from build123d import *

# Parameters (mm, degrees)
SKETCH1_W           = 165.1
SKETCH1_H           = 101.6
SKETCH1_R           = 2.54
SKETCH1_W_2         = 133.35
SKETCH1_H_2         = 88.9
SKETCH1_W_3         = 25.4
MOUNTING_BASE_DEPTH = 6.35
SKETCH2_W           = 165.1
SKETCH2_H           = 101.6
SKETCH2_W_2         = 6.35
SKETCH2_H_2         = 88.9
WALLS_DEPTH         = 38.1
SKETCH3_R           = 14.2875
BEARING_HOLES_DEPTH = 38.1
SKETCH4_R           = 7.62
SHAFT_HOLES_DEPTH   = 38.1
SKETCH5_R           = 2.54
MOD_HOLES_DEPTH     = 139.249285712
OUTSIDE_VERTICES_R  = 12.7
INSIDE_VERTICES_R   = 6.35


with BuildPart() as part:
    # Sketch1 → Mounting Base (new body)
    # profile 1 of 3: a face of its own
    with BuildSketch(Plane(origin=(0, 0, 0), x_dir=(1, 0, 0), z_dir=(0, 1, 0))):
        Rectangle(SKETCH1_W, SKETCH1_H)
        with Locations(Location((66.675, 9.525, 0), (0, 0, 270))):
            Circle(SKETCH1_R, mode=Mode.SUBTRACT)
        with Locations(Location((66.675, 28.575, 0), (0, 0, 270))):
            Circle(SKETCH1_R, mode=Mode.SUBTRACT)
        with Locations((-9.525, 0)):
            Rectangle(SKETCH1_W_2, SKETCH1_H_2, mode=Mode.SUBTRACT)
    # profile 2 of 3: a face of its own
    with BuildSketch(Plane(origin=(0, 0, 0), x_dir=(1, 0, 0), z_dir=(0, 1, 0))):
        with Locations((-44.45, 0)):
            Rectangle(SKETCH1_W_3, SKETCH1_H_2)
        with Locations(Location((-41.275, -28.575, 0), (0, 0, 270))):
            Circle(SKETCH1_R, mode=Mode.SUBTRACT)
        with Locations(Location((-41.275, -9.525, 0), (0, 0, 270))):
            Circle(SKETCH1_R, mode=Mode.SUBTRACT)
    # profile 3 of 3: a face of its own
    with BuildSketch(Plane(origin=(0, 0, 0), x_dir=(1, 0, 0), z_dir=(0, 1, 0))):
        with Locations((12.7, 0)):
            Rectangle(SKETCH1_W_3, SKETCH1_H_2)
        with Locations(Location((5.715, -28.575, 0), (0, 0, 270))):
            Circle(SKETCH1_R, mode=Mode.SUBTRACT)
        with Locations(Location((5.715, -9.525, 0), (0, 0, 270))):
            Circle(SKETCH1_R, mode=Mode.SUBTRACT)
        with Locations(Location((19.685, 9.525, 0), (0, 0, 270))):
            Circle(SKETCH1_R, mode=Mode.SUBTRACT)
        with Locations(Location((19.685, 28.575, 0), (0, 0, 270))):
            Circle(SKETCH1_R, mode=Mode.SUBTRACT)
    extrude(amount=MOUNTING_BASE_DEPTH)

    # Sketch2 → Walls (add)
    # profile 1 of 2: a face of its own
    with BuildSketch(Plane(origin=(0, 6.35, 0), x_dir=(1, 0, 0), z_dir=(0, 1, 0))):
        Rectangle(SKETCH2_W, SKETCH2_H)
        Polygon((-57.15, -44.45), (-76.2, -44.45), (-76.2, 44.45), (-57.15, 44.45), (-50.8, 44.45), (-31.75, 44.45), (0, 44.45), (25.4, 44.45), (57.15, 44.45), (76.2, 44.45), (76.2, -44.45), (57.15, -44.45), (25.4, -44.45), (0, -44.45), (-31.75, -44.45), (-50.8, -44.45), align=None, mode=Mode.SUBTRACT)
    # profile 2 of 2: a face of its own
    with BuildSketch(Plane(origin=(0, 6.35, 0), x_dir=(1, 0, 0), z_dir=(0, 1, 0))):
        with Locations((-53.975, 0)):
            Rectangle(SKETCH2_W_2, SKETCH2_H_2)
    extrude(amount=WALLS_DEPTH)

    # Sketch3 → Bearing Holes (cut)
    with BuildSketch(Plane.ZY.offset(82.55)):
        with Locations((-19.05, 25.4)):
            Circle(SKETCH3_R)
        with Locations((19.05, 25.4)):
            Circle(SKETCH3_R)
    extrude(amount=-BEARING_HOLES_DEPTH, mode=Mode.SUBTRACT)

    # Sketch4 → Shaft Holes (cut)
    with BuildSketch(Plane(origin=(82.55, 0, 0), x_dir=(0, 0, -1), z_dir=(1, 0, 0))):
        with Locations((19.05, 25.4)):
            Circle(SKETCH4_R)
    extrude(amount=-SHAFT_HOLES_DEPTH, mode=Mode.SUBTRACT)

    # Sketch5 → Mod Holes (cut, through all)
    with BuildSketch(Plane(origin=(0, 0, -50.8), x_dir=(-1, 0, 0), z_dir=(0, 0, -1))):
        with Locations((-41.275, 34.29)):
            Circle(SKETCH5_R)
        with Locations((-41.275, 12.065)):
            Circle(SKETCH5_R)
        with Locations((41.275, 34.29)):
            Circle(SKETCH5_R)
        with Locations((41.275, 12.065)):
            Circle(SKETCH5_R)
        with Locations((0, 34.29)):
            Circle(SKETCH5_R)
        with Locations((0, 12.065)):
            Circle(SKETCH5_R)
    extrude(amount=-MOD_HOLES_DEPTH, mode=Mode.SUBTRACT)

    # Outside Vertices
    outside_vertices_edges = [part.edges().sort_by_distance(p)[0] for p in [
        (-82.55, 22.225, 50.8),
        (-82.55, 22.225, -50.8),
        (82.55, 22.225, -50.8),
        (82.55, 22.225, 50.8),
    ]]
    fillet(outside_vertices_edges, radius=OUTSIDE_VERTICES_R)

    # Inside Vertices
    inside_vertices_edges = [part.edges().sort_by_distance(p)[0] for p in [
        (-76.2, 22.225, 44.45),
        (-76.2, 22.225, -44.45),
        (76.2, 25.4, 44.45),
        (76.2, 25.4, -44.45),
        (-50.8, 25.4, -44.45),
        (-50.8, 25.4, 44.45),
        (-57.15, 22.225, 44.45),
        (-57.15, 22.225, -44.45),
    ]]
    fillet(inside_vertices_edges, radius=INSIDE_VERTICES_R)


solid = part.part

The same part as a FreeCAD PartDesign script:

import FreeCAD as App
import Part
import Sketcher

V = App.Vector
Q = App.Units.Quantity


def edges_at(feature, points):
    """Names of the edges that pass closest to the given points."""
    edges = feature.Shape.Edges
    near = lambda p: min(range(len(edges)), key=lambda i: edges[i].distToShape(Part.Vertex(*p))[0])
    return sorted({f"Edge{near(p) + 1}" for p in points})


def add_polygon(sketch, points):
    """Adds a closed chain of lines whose ends are joined by coincident constraints."""
    first, n = sketch.GeometryCount, len(points)
    for a, b in zip(points, points[1:] + points[:1]):
        sketch.addGeometry(Part.LineSegment(App.Vector(*a, 0), App.Vector(*b, 0)), False)
    for i in range(n):
        sketch.addConstraint(Sketcher.Constraint("Coincident", first + i, 2, first + (i + 1) % n, 1))

doc = App.newDocument("Part")
body = doc.addObject("PartDesign::Body", "Body")

sketch1 = body.newObject("Sketcher::SketchObject", "Sketch")
sketch1.AttachmentSupport = (doc.getObject("XZ_Plane"), [""])
sketch1.MapMode = "FlatFace"
add_polygon(sketch1, [(-82.55, -50.8), (-82.55, 50.8), (82.55, 50.8), (82.55, -50.8)])
add_polygon(sketch1, [(-57.15, 44.45), (-76.2, 44.45), (-76.2, -44.45), (-57.15, -44.45)])
add_polygon(sketch1, [(0, 44.45), (-31.75, 44.45), (-31.75, -44.45), (0, -44.45)])
add_polygon(sketch1, [(57.15, 44.45), (25.4, 44.45), (25.4, -44.45), (57.15, -44.45)])
sketch1.addGeometry(Part.Circle(V(66.675, -9.525, 0), V(0, 0, 1), 2.54), False)
sketch1.addGeometry(Part.Circle(V(66.675, -28.575, 0), V(0, 0, 1), 2.54), False)
sketch1.addGeometry(Part.Circle(V(-41.275, 9.525, 0), V(0, 0, 1), 2.54), False)
sketch1.addGeometry(Part.Circle(V(-41.275, 28.575, 0), V(0, 0, 1), 2.54), False)
sketch1.addGeometry(Part.Circle(V(19.685, -28.575, 0), V(0, 0, 1), 2.54), False)
sketch1.addGeometry(Part.Circle(V(19.685, -9.525, 0), V(0, 0, 1), 2.54), False)
sketch1.addGeometry(Part.Circle(V(5.715, 28.575, 0), V(0, 0, 1), 2.54), False)
sketch1.addGeometry(Part.Circle(V(5.715, 9.525, 0), V(0, 0, 1), 2.54), False)
sketch1.addConstraint(Sketcher.Constraint("Vertical", 0))
sketch1.addConstraint(Sketcher.Constraint("Horizontal", 1))
sketch1.addConstraint(Sketcher.Constraint("Vertical", 2))
sketch1.addConstraint(Sketcher.Constraint("Horizontal", 3))
sketch1.addConstraint(Sketcher.Constraint("Horizontal", 4))
sketch1.addConstraint(Sketcher.Constraint("Vertical", 5))
sketch1.addConstraint(Sketcher.Constraint("Horizontal", 6))
sketch1.addConstraint(Sketcher.Constraint("Vertical", 7))
sketch1.addConstraint(Sketcher.Constraint("Horizontal", 8))
sketch1.addConstraint(Sketcher.Constraint("Vertical", 9))
sketch1.addConstraint(Sketcher.Constraint("Horizontal", 10))
sketch1.addConstraint(Sketcher.Constraint("Vertical", 11))
sketch1.addConstraint(Sketcher.Constraint("Horizontal", 12))
sketch1.addConstraint(Sketcher.Constraint("Vertical", 13))
sketch1.addConstraint(Sketcher.Constraint("Horizontal", 14))
sketch1.addConstraint(Sketcher.Constraint("Vertical", 15))
sketch1.addConstraint(Sketcher.Constraint("Equal", 16, 17))
sketch1.addConstraint(Sketcher.Constraint("Equal", 17, 18))
sketch1.addConstraint(Sketcher.Constraint("Equal", 18, 19))
sketch1.addConstraint(Sketcher.Constraint("Equal", 19, 20))
sketch1.addConstraint(Sketcher.Constraint("Equal", 20, 21))
sketch1.addConstraint(Sketcher.Constraint("Equal", 21, 22))
sketch1.addConstraint(Sketcher.Constraint("Equal", 22, 23))
sketch1.addConstraint(Sketcher.Constraint("Symmetric", 0, 2, 2, 2, -1, 1))
sketch1.addConstraint(Sketcher.Constraint("Symmetric", 10, 2, 11, 2, -1, 1))
sketch1.addConstraint(Sketcher.Constraint("Symmetric", 7, 2, 14, 2, -1, 1))
sketch1.addConstraint(Sketcher.Constraint("Horizontal", 17, 3, 20, 3))
sketch1.addConstraint(Sketcher.Constraint("Horizontal", 16, 3, 21, 3))
sketch1.addConstraint(Sketcher.Constraint("Horizontal", 19, 3, 22, 3))
sketch1.addConstraint(Sketcher.Constraint("Horizontal", 18, 3, 23, 3))
sketch1.addConstraint(Sketcher.Constraint("Horizontal", 7, 2, 8, 2))
sketch1.addConstraint(Sketcher.Constraint("Horizontal", 6, 2, 9, 2))
sketch1.addConstraint(Sketcher.Constraint("Horizontal", 11, 2, 12, 2))
sketch1.addConstraint(Sketcher.Constraint("Vertical", 16, 3, 17, 3))
sketch1.addConstraint(Sketcher.Constraint("Vertical", 18, 3, 19, 3))
sketch1.addConstraint(Sketcher.Constraint("Vertical", 20, 3, 21, 3))
sketch1.addConstraint(Sketcher.Constraint("Vertical", 22, 3, 23, 3))
sketch1.addConstraint(Sketcher.Constraint("Equal", 10, 12))
sketch1.addConstraint(Sketcher.Constraint("Diameter", 16, Q("0.2 in")))
sketch1.addConstraint(Sketcher.Constraint("DistanceY", 0, 1, 0, 2, Q("4 in")))
sketch1.addConstraint(Sketcher.Constraint("DistanceX", 1, 1, 1, 2, Q("6.5 in")))
sketch1.addConstraint(Sketcher.Constraint("DistanceY", 5, 2, 5, 1, Q("3.5 in")))
sketch1.addConstraint(Sketcher.Constraint("DistanceX", 4, 2, -1, 1, Q("3 in")))
sketch1.addConstraint(Sketcher.Constraint("DistanceX", -1, 1, 12, 2, Q("1 in")))
sketch1.addConstraint(Sketcher.Constraint("DistanceX", 3, 2, 6, 2, Q("1 in")))
sketch1.addConstraint(Sketcher.Constraint("DistanceY", 17, 3, 18, 3, Q("1.5 in")))
sketch1.addConstraint(Sketcher.Constraint("DistanceY", 16, 3, 19, 3, Q("1.5 in")))
sketch1.addConstraint(Sketcher.Constraint("DistanceX", 18, 3, 20, 3, Q("2.4 in")))
sketch1.addConstraint(Sketcher.Constraint("DistanceX", 22, 3, 16, 3, Q("2.4 in")))
sketch1.addConstraint(Sketcher.Constraint("DistanceY", 17, 3, 16, 3, Q("0.75 in")))
sketch1.addConstraint(Sketcher.Constraint("DistanceX", 18, 3, 16, 3, Q("4.25 in")))
sketch1.addConstraint(Sketcher.Constraint("DistanceX", -1, 1, 16, 3, Q("2.625 in")))
sketch1.addConstraint(Sketcher.Constraint("DistanceY", 16, 3, -1, 1, Q("0.375 in")))
pad1 = body.newObject("PartDesign::Pad", "Pad")
pad1.Profile = sketch1
pad1.Length = Q("0.25 in")
pad1.Reversed = True

sketch2 = body.newObject("Sketcher::SketchObject", "Sketch001")
sketch2.AttachmentSupport = (doc.getObject("XZ_Plane"), [""])
sketch2.MapMode = "FlatFace"
sketch2.AttachmentOffset = App.Placement(V(0, 0, -0.25 * 25.4), App.Rotation())
add_polygon(sketch2, [(-82.55, -50.8), (-82.55, 50.8), (82.55, 50.8), (82.55, -50.8)])
add_polygon(sketch2, [(76.2, 44.45), (-50.8, 44.45), (-50.8, -44.45), (76.2, -44.45)])
add_polygon(sketch2, [(-57.15, 44.45), (-76.2, 44.45), (-76.2, -44.45), (-57.15, -44.45)])
sketch2.addConstraint(Sketcher.Constraint("Vertical", 0))
sketch2.addConstraint(Sketcher.Constraint("Horizontal", 1))
sketch2.addConstraint(Sketcher.Constraint("Vertical", 2))
sketch2.addConstraint(Sketcher.Constraint("Horizontal", 3))
sketch2.addConstraint(Sketcher.Constraint("Horizontal", 4))
sketch2.addConstraint(Sketcher.Constraint("Vertical", 5))
sketch2.addConstraint(Sketcher.Constraint("Horizontal", 6))
sketch2.addConstraint(Sketcher.Constraint("Vertical", 7))
sketch2.addConstraint(Sketcher.Constraint("Horizontal", 8))
sketch2.addConstraint(Sketcher.Constraint("Vertical", 9))
sketch2.addConstraint(Sketcher.Constraint("Horizontal", 10))
sketch2.addConstraint(Sketcher.Constraint("Vertical", 11))
sketch2.addConstraint(Sketcher.Constraint("Symmetric", 0, 2, 2, 2, -1, 1))
sketch2.addConstraint(Sketcher.Constraint("Symmetric", 6, 2, 8, 2, -1, 1))
sketch2.addConstraint(Sketcher.Constraint("Horizontal", 7, 2, 8, 2))
sketch2.addConstraint(Sketcher.Constraint("Horizontal", 6, 2, 9, 2))
sketch2.addConstraint(Sketcher.Constraint("DistanceX", 4, 2, 4, 1, Q("5 in")))
sketch2.addConstraint(Sketcher.Constraint("DistanceY", 0, 1, 0, 2, Q("4 in")))
sketch2.addConstraint(Sketcher.Constraint("DistanceX", 1, 1, 1, 2, Q("6.5 in")))
sketch2.addConstraint(Sketcher.Constraint("DistanceY", 5, 2, 5, 1, Q("3.5 in")))
sketch2.addConstraint(Sketcher.Constraint("DistanceX", 4, 2, -1, 1, Q("2 in")))
sketch2.addConstraint(Sketcher.Constraint("DistanceX", 3, 2, 10, 2, Q("1 in")))
pad2 = body.newObject("PartDesign::Pad", "Pad001")
pad2.Profile = sketch2
pad2.Length = Q("1.5 in")
pad2.Reversed = True

sketch3 = body.newObject("Sketcher::SketchObject", "Sketch002")
sketch3.AttachmentSupport = (doc.getObject("YZ_Plane"), [""])
sketch3.MapMode = "FlatFace"
sketch3.AttachmentOffset = App.Placement(V(0, 0, -3.25 * 25.4), App.Rotation())
sketch3.addGeometry(Part.Circle(V(25.4, -19.05, 0), V(0, 0, 1), 14.2875), False)
sketch3.addGeometry(Part.Circle(V(25.4, 19.05, 0), V(0, 0, 1), 14.2875), False)
sketch3.addConstraint(Sketcher.Constraint("Equal", 0, 1))
sketch3.addConstraint(Sketcher.Constraint("Symmetric", 0, 3, 1, 3, -1))
sketch3.addConstraint(Sketcher.Constraint("Diameter", 0, Q("1.125 in")))
sketch3.addConstraint(Sketcher.Constraint("DistanceX", -1, 1, 0, 3, Q("1 in")))
sketch3.addConstraint(Sketcher.Constraint("DistanceY", 0, 3, 1, 3, Q("1.5 in")))
pocket1 = body.newObject("PartDesign::Pocket", "Pocket")
pocket1.Profile = sketch3
pocket1.Length = Q("1.5 in")
pocket1.Reversed = True

sketch4 = body.newObject("Sketcher::SketchObject", "Sketch003")
sketch4.AttachmentSupport = (doc.getObject("YZ_Plane"), [""])
sketch4.MapMode = "FlatFace"
sketch4.AttachmentOffset = App.Placement(V(0, 0, 3.25 * 25.4), App.Rotation())
sketch4.addGeometry(Part.Circle(V(25.4, -19.05, 0), V(0, 0, 1), 7.62), False)
sketch4.addConstraint(Sketcher.Constraint("Diameter", 0, Q("0.6 in")))
sketch4.addConstraint(Sketcher.Constraint("DistanceX", -1, 1, 0, 3, Q("1 in")))
sketch4.addConstraint(Sketcher.Constraint("DistanceY", 0, 3, -1, 1, Q("0.75 in")))
pocket2 = body.newObject("PartDesign::Pocket", "Pocket001")
pocket2.Profile = sketch4
pocket2.Length = Q("1.5 in")

sketch5 = body.newObject("Sketcher::SketchObject", "Sketch004")
sketch5.AttachmentSupport = (doc.getObject("XY_Plane"), [""])
sketch5.MapMode = "FlatFace"
sketch5.AttachmentOffset = App.Placement(V(0, 0, -2 * 25.4), App.Rotation())
sketch5.addGeometry(Part.Circle(V(41.275, 34.29, 0), V(0, 0, 1), 2.54), False)
sketch5.addGeometry(Part.Circle(V(41.275, 12.065, 0), V(0, 0, 1), 2.54), False)
sketch5.addGeometry(Part.Circle(V(-41.275, 34.29, 0), V(0, 0, 1), 2.54), False)
sketch5.addGeometry(Part.Circle(V(-41.275, 12.065, 0), V(0, 0, 1), 2.54), False)
sketch5.addGeometry(Part.Circle(V(0, 34.29, 0), V(0, 0, 1), 2.54), False)
sketch5.addGeometry(Part.Circle(V(0, 12.065, 0), V(0, 0, 1), 2.54), False)
sketch5.addConstraint(Sketcher.Constraint("Equal", 0, 1))
sketch5.addConstraint(Sketcher.Constraint("Equal", 1, 2))
sketch5.addConstraint(Sketcher.Constraint("Equal", 2, 3))
sketch5.addConstraint(Sketcher.Constraint("Equal", 3, 4))
sketch5.addConstraint(Sketcher.Constraint("Equal", 4, 5))
sketch5.addConstraint(Sketcher.Constraint("Symmetric", 0, 3, 2, 3, -2))
sketch5.addConstraint(Sketcher.Constraint("Symmetric", 1, 3, 3, 3, -2))
sketch5.addConstraint(Sketcher.Constraint("PointOnObject", 4, 3, -2))
sketch5.addConstraint(Sketcher.Constraint("PointOnObject", 5, 3, -2))
sketch5.addConstraint(Sketcher.Constraint("Horizontal", 2, 3, 4, 3))
sketch5.addConstraint(Sketcher.Constraint("Horizontal", 3, 3, 5, 3))
sketch5.addConstraint(Sketcher.Constraint("Vertical", 0, 3, 1, 3))
sketch5.addConstraint(Sketcher.Constraint("Diameter", 0, Q("0.2 in")))
sketch5.addConstraint(Sketcher.Constraint("DistanceY", -1, 1, 0, 3, Q("1.35 in")))
sketch5.addConstraint(Sketcher.Constraint("DistanceX", 2, 3, 0, 3, Q("3.25 in")))
sketch5.addConstraint(Sketcher.Constraint("DistanceY", -1, 1, 1, 3, Q("0.475 in")))
pocket3 = body.newObject("PartDesign::Pocket", "Pocket002")
pocket3.Profile = sketch5
pocket3.Type = "ThroughAll"
pocket3.Reversed = True
doc.recompute()

fillet = body.newObject("PartDesign::Fillet", "Fillet")
fillet.Base = (pocket3, edges_at(pocket3, [
    (-82.55, 22.225, 50.8),
    (-82.55, 22.225, -50.8),
    (82.55, 22.225, -50.8),
    (82.55, 22.225, 50.8),
]))
fillet.Radius = Q("0.5 in")
doc.recompute()

fillet2 = body.newObject("PartDesign::Fillet", "Fillet001")
fillet2.Base = (fillet, edges_at(fillet, [
    (-76.2, 22.225, 44.45),
    (-76.2, 22.225, -44.45),
    (76.2, 25.4, 44.45),
    (76.2, 25.4, -44.45),
    (-50.8, 25.4, -44.45),
    (-50.8, 25.4, 44.45),
    (-57.15, 22.225, 44.45),
    (-57.15, 22.225, -44.45),
]))
fillet2.Radius = Q("0.25 in")

doc.recompute()
